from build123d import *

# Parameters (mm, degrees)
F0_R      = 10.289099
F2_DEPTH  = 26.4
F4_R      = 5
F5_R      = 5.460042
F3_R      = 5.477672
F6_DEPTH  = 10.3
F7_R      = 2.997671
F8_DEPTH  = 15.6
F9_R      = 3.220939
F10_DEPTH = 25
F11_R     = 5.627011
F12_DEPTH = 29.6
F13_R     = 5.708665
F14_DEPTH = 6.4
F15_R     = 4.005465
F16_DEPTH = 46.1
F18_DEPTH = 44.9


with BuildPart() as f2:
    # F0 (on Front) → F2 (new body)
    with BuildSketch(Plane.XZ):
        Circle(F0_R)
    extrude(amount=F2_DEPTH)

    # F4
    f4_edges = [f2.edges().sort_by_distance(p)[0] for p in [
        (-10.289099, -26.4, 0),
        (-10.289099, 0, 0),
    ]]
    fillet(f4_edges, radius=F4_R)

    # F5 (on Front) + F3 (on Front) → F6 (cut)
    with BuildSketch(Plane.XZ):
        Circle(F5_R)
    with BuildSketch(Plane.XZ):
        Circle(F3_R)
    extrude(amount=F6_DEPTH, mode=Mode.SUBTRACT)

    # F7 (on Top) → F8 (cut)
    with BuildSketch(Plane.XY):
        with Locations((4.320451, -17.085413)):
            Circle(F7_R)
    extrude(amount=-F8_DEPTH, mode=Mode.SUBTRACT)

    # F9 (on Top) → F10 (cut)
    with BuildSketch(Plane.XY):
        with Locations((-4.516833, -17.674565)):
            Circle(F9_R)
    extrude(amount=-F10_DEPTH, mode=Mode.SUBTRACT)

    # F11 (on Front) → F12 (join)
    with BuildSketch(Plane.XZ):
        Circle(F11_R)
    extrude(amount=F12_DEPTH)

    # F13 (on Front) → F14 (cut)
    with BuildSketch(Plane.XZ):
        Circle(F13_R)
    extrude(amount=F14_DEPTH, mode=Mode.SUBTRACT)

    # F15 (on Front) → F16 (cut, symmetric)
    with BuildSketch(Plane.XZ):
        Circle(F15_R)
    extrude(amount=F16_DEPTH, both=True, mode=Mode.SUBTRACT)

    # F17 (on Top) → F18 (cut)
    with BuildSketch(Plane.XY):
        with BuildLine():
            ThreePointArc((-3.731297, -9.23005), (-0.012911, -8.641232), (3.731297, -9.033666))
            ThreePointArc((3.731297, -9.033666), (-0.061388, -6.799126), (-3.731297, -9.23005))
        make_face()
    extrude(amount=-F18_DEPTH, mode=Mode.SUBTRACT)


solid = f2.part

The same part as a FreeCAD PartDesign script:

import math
import FreeCAD as App
import Part
import Sketcher

V = App.Vector


def edges_at(feature, points):
    """Names of the edges that pass closest to the given points."""
    edges = feature.Shape.Edges
    near = lambda p: min(range(len(edges)), key=lambda i: edges[i].distToShape(Part.Vertex(*p))[0])
    return sorted({f"Edge{near(p) + 1}" for p in points})

doc = App.newDocument("Part")
body = doc.addObject("PartDesign::Body", "Body")

# Sketch on XZ plane
sketch1 = body.newObject("Sketcher::SketchObject", "Sketch")
sketch1.AttachmentSupport = (doc.getObject("XZ_Plane"), [""])
sketch1.MapMode = "FlatFace"
sketch1.addGeometry(Part.Circle(V(0, 0, 0), V(0, 0, 1), 10), False)
sketch1.addConstraint([
    Sketcher.Constraint("Coincident", 0, 3, -1, 1),
    Sketcher.Constraint("Diameter", 0, 20.578198),
])
pad1 = body.newObject("PartDesign::Pad", "Pad")
pad1.Profile = sketch1
pad1.Length = 26.4
doc.recompute()

fillet = body.newObject("PartDesign::Fillet", "Fillet")
fillet.Base = (pad1, edges_at(pad1, [(-10.289, -26.4, 0), (-10.289, 0, 0)]))
fillet.Radius = 5

# Sketch on XZ plane
sketch2 = body.newObject("Sketcher::SketchObject", "Sketch001")
sketch2.AttachmentSupport = (doc.getObject("XZ_Plane"), [""])
sketch2.MapMode = "FlatFace"
sketch2.addGeometry(Part.Circle(V(0, 0, 0), V(0, 0, 1), 5), False)
sketch2.addConstraint([
    Sketcher.Constraint("Coincident", 0, 3, -1, 1),
    Sketcher.Constraint("Diameter", 0, 10.955344),
])
pocket1 = body.newObject("PartDesign::Pocket", "Pocket")
pocket1.Profile = sketch2
pocket1.Length = 10.3
pocket1.Reversed = True

# Sketch on XY plane
sketch3 = body.newObject("Sketcher::SketchObject", "Sketch002")
sketch3.AttachmentSupport = (doc.getObject("XY_Plane"), [""])
sketch3.MapMode = "FlatFace"
sketch3.addGeometry(Part.Circle(V(4.3, -17.1, 0), V(0, 0, 1), 3), False)
sketch3.addConstraint([
    Sketcher.Constraint("Diameter", 0, 5.995342),
    Sketcher.Constraint("DistanceX", -1, 1, 0, 3, 4.320451),
    Sketcher.Constraint("DistanceY", 0, 3, -1, 1, 17.085413),
])
pocket2 = body.newObject("PartDesign::Pocket", "Pocket001")
pocket2.Profile = sketch3
pocket2.Length = 15.6

# Sketch on XY plane
sketch4 = body.newObject("Sketcher::SketchObject", "Sketch003")
sketch4.AttachmentSupport = (doc.getObject("XY_Plane"), [""])
sketch4.MapMode = "FlatFace"
sketch4.addGeometry(Part.Circle(V(-4.5, -17.7, 0), V(0, 0, 1), 3.2), False)
sketch4.addConstraint([
    Sketcher.Constraint("Diameter", 0, 6.441878),
    Sketcher.Constraint("DistanceX", 0, 3, -1, 1, 4.516833),
    Sketcher.Constraint("DistanceY", 0, 3, -1, 1, 17.674565),
])
pocket3 = body.newObject("PartDesign::Pocket", "Pocket002")
pocket3.Profile = sketch4
pocket3.Length = 25

# Sketch on XZ plane
sketch5 = body.newObject("Sketcher::SketchObject", "Sketch004")
sketch5.AttachmentSupport = (doc.getObject("XZ_Plane"), [""])
sketch5.MapMode = "FlatFace"
sketch5.addGeometry(Part.Circle(V(0, 0, 0), V(0, 0, 1), 6), False)
sketch5.addConstraint([
    Sketcher.Constraint("Coincident", 0, 3, -1, 1),
    Sketcher.Constraint("Diameter", 0, 11.254022),
])
pad2 = body.newObject("PartDesign::Pad", "Pad001")
pad2.Profile = sketch5
pad2.Length = 29.6

# Sketch on XZ plane
sketch6 = body.newObject("Sketcher::SketchObject", "Sketch005")
sketch6.AttachmentSupport = (doc.getObject("XZ_Plane"), [""])
sketch6.MapMode = "FlatFace"
sketch6.addGeometry(Part.Circle(V(0, 0, 0), V(0, 0, 1), 6), False)
sketch6.addConstraint([
    Sketcher.Constraint("Coincident", 0, 3, -1, 1),
    Sketcher.Constraint("Diameter", 0, 11.41733),
])
pocket4 = body.newObject("PartDesign::Pocket", "Pocket003")
pocket4.Profile = sketch6
pocket4.Length = 6.4
pocket4.Reversed = True

# Sketch on XZ plane
sketch7 = body.newObject("Sketcher::SketchObject", "Sketch006")
sketch7.AttachmentSupport = (doc.getObject("XZ_Plane"), [""])
sketch7.MapMode = "FlatFace"
sketch7.addGeometry(Part.Circle(V(0, 0, 0), V(0, 0, 1), 4), False)
sketch7.addConstraint([
    Sketcher.Constraint("Coincident", 0, 3, -1, 1),
    Sketcher.Constraint("Diameter", 0, 8.01093),
])
pocket5 = body.newObject("PartDesign::Pocket", "Pocket004")
pocket5.Profile = sketch7
pocket5.Length = 92.2
pocket5.Midplane = True

# Sketch on XY plane
sketch8 = body.newObject("Sketcher::SketchObject", "Sketch007")
sketch8.AttachmentSupport = (doc.getObject("XY_Plane"), [""])
sketch8.MapMode = "FlatFace"
sketch8.addGeometry([
    Part.ArcOfCircle(Part.Circle(V(0.4, -23.1, 0), V(0, 0, 1), 14.4), math.radians(77), math.radians(106)),
    Part.ArcOfCircle(Part.Circle(V(0, -10.9, 0), V(0, 0, 1), 4.2), math.radians(27), math.radians(156)),
], False)
sketch8.addConstraint([
    Sketcher.Constraint("Coincident", 0, 1, 1, 1),
    Sketcher.Constraint("Coincident", 1, 2, 0, 2),
    Sketcher.Constraint("Radius", 1, 4.151981),
    Sketcher.Constraint("Radius", 0, 14.438895),
    Sketcher.Constraint("DistanceX", -1, 1, 0, 3, 0.366928),
    Sketcher.Constraint("DistanceY", 0, 3, -1, 1, 23.07513),
    Sketcher.Constraint("DistanceY", 1, 3, -1, 1, 10.94967),
    Sketcher.Constraint("DistanceY", 1, 2, -1, 1, 9.23005),
])
pocket6 = body.newObject("PartDesign::Pocket", "Pocket005")
pocket6.Profile = sketch8
pocket6.Length = 44.9

doc.recompute()
